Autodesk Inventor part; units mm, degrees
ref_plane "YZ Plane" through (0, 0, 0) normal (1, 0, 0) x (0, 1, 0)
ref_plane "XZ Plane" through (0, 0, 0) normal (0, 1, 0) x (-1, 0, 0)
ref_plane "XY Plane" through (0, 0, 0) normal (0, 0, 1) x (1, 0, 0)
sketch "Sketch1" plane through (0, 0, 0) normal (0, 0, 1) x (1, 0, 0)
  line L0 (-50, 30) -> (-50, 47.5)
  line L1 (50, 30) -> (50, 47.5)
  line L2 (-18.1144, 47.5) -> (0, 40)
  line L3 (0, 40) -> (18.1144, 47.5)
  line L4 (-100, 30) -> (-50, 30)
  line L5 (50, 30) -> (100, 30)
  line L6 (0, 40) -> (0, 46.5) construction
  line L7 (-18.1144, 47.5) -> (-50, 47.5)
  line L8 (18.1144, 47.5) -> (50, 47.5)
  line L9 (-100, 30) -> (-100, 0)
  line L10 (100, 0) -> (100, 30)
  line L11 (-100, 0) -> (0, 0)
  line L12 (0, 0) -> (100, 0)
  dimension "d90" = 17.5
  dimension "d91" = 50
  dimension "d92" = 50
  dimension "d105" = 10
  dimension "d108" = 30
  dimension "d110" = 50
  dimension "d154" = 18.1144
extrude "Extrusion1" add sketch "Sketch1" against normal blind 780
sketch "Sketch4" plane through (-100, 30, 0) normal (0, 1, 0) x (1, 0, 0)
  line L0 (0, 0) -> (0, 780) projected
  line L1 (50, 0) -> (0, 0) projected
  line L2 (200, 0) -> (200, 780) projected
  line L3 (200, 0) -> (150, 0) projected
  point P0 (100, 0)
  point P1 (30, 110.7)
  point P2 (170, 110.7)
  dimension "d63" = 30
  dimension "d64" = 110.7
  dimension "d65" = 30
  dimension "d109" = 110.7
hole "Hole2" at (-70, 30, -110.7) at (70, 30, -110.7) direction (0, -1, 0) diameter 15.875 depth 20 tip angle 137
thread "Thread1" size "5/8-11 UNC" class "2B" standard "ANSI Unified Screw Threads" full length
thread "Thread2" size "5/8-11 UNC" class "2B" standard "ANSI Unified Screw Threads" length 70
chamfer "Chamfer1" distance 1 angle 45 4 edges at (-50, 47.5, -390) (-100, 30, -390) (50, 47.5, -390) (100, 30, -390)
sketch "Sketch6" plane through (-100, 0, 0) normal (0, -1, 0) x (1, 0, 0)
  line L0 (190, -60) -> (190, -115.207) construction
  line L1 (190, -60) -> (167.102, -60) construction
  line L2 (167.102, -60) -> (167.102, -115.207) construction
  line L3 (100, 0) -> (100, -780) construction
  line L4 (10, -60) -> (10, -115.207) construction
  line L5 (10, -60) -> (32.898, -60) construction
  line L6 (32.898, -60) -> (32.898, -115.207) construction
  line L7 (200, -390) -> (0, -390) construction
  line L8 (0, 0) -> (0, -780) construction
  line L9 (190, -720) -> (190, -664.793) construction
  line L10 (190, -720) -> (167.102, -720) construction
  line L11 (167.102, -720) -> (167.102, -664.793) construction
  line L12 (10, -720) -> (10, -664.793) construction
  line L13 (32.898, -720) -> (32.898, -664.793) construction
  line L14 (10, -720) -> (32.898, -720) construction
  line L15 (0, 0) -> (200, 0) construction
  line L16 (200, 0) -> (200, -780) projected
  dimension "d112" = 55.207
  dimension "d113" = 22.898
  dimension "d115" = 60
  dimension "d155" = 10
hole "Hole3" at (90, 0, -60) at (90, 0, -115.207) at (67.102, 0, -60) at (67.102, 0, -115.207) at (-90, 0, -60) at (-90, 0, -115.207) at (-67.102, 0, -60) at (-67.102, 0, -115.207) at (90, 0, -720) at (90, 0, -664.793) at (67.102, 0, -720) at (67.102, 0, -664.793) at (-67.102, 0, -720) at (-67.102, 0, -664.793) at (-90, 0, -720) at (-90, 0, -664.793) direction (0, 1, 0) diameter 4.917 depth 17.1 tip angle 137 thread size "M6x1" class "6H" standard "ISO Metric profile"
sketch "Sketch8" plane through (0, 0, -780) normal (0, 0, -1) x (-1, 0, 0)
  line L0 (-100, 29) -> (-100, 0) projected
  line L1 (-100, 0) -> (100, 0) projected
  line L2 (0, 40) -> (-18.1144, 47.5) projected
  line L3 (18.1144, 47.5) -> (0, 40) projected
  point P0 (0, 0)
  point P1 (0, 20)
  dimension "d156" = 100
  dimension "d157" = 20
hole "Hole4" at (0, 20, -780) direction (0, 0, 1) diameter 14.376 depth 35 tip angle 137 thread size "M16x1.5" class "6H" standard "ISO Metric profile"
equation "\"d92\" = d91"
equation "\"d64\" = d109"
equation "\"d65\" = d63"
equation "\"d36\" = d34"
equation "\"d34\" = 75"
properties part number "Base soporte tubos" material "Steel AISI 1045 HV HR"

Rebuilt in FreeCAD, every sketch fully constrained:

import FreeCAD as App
import Part
import Sketcher
from FreeCAD import Vector


def edges_at(feature, points):
    """Names of the edges that pass closest to the given points."""
    edges = feature.Shape.Edges
    near = lambda p: min(range(len(edges)), key=lambda i: edges[i].distToShape(Part.Vertex(*p))[0])
    return sorted({f"Edge{near(p) + 1}" for p in points})


def add_polygon(sketch, points):
    """Adds a closed chain of lines whose ends are joined by coincident constraints."""
    first, n = sketch.GeometryCount, len(points)
    for a, b in zip(points, points[1:] + points[:1]):
        sketch.addGeometry(Part.LineSegment(App.Vector(*a, 0), App.Vector(*b, 0)), False)
    for i in range(n):
        sketch.addConstraint(Sketcher.Constraint("Coincident", first + i, 2, first + (i + 1) % n, 1))

doc = App.newDocument("Part")
params = doc.addObject("Spreadsheet::Sheet", "Params")
for row, (alias, value) in enumerate([
    ("sketch1_width", "50 mm"),
    ("sketch1_height", "30 mm"),
    ("sketch1_height2", "17.5 mm"),
    ("pad1_length", "780 mm"),
    ("hole_diameter", "15.875 mm"),
    ("hole_depth", "20 mm"),
    ("chamfer_size", "1 mm"),
    ("hole2_diameter", "4.917 mm"),
    ("hole2_depth", "17.1 mm"),
    ("hole3_diameter", "14.376 mm"),
    ("hole3_depth", "35 mm"),
], start=1):
    params.set(f"A{row}", alias)
    params.set(f"B{row}", "=" + value)
    params.setAlias(f"B{row}", alias)

body = doc.addObject("PartDesign::Body", "Body")

# Sketch on XY plane
sketch1 = body.newObject("Sketcher::SketchObject", "Sketch")
sketch1.AttachmentSupport = (doc.getObject("XY_Plane"), [""])
sketch1.MapMode = "FlatFace"
add_polygon(sketch1, [(-50, 48), (-50, 30), (-100, 30), (-100, 0), (100, 0), (100, 30), (50, 30), (50, 48), (18, 48), (0, 40), (-18, 48)])  # lines 0-10
sketch1.addConstraint(Sketcher.Constraint("Vertical", 0))
sketch1.addConstraint(Sketcher.Constraint("Horizontal", 1))
sketch1.addConstraint(Sketcher.Constraint("Vertical", 2))
sketch1.addConstraint(Sketcher.Constraint("Horizontal", 3))
sketch1.addConstraint(Sketcher.Constraint("Vertical", 4))
sketch1.addConstraint(Sketcher.Constraint("Horizontal", 5))
sketch1.addConstraint(Sketcher.Constraint("Vertical", 6))
sketch1.addConstraint(Sketcher.Constraint("Horizontal", 7))
sketch1.addConstraint(Sketcher.Constraint("Horizontal", 10))
sketch1.addConstraint(Sketcher.Constraint("Symmetric", 2, 2, 3, 2, -1, 1))
sketch1.addConstraint(Sketcher.Constraint("Symmetric", 0, 2, 5, 2, -2))
sketch1.addConstraint(Sketcher.Constraint("Symmetric", 7, 2, 9, 2, -2))
sketch1.addConstraint(Sketcher.Constraint("PointOnObject", 8, 2, -2))
sketch1.addConstraint(Sketcher.Constraint("DistanceX", 1, 2, 1, 1, 50.0))
sketch1.addConstraint(Sketcher.Constraint("DistanceY", 2, 2, 2, 1, 30.0))
sketch1.addConstraint(Sketcher.Constraint("DistanceY", 0, 2, 0, 1, 17.5))
sketch1.addConstraint(Sketcher.Constraint("DistanceX", 0, 2, -1, 1, 50.0))
sketch1.addConstraint(Sketcher.Constraint("DistanceY", 0, 2, 8, 2, 10.0))
sketch1.addConstraint(Sketcher.Constraint("DistanceX", -1, 1, 7, 2, 18.1144))
sketch1.setExpression("Constraints[24]", "Params.sketch1_width")
sketch1.setExpression("Constraints[25]", "Params.sketch1_height")
sketch1.setExpression("Constraints[26]", "Params.sketch1_height2")
pad1 = body.newObject("PartDesign::Pad", "Pad")
pad1.Profile = sketch1
pad1.setExpression("Length", "Params.pad1_length")
pad1.Reversed = True

# Sketch on XZ plane
sketch2 = body.newObject("Sketcher::SketchObject", "Sketch001")
sketch2.AttachmentSupport = (doc.getObject("XZ_Plane"), [""])
sketch2.MapMode = "FlatFace"
sketch2.AttachmentOffset = App.Placement(Vector(0, 0, -30), App.Rotation())
sketch2.addGeometry(Part.Circle(Vector(-70, -111, 0), Vector(0, 0, 1), 8), False)
sketch2.addGeometry(Part.Circle(Vector(70, -111, 0), Vector(0, 0, 1), 8), False)
sketch2.addConstraint(Sketcher.Constraint("Equal", 0, 1))
sketch2.addConstraint(Sketcher.Constraint("Symmetric", 0, 3, 1, 3, -2))
sketch2.addConstraint(Sketcher.Constraint("Diameter", 0, 15.875))
sketch2.addConstraint(Sketcher.Constraint("DistanceX", 0, 3, -1, 1, 70.0))
sketch2.addConstraint(Sketcher.Constraint("DistanceY", 0, 3, -1, 1, 110.7))
doc.recompute()
hole = body.newObject("PartDesign::Hole", "Hole")
hole.Profile = sketch2
hole.ThreadType = "None"
hole.setExpression("Diameter", "Params.hole_diameter")
hole.DepthType = "Dimension"
hole.setExpression("Depth", "Params.hole_depth")
hole.DrillPoint = "Angled"
hole.DrillPointAngle = 137
hole.Reversed = True
doc.recompute()

chamfer = body.newObject("PartDesign::Chamfer", "Chamfer")
chamfer.Base = (hole, edges_at(hole, [
    (-50, 47.5, -390),
    (-100, 30, -390),
    (50, 47.5, -390),
    (100, 30, -390),
]))
chamfer.setExpression("Size", "Params.chamfer_size")

# Sketch on XZ plane
sketch3 = body.newObject("Sketcher::SketchObject", "Sketch002")
sketch3.AttachmentSupport = (doc.getObject("XZ_Plane"), [""])
sketch3.MapMode = "FlatFace"
sketch3.addGeometry(Part.Circle(Vector(90, -60, 0), Vector(0, 0, 1), 2.5), False)
sketch3.addGeometry(Part.Circle(Vector(90, -115.2, 0), Vector(0, 0, 1), 2.5), False)
sketch3.addGeometry(Part.Circle(Vector(67.1, -60, 0), Vector(0, 0, 1), 2.5), False)
sketch3.addGeometry(Part.Circle(Vector(67.1, -115.2, 0), Vector(0, 0, 1), 2.5), False)
sketch3.addGeometry(Part.Circle(Vector(-90, -60, 0), Vector(0, 0, 1), 2.5), False)
sketch3.addGeometry(Part.Circle(Vector(-90, -115.2, 0), Vector(0, 0, 1), 2.5), False)
sketch3.addGeometry(Part.Circle(Vector(-67.1, -60, 0), Vector(0, 0, 1), 2.5), False)
sketch3.addGeometry(Part.Circle(Vector(-67.1, -115.2, 0), Vector(0, 0, 1), 2.5), False)
sketch3.addGeometry(Part.Circle(Vector(90, -720, 0), Vector(0, 0, 1), 2.5), False)
sketch3.addGeometry(Part.Circle(Vector(90, -664.8, 0), Vector(0, 0, 1), 2.5), False)
sketch3.addGeometry(Part.Circle(Vector(67.1, -720, 0), Vector(0, 0, 1), 2.5), False)
sketch3.addGeometry(Part.Circle(Vector(67.1, -664.8, 0), Vector(0, 0, 1), 2.5), False)
sketch3.addGeometry(Part.Circle(Vector(-67.1, -720, 0), Vector(0, 0, 1), 2.5), False)
sketch3.addGeometry(Part.Circle(Vector(-67.1, -664.8, 0), Vector(0, 0, 1), 2.5), False)
sketch3.addGeometry(Part.Circle(Vector(-90, -720, 0), Vector(0, 0, 1), 2.5), False)
sketch3.addGeometry(Part.Circle(Vector(-90, -664.8, 0), Vector(0, 0, 1), 2.5), False)
sketch3.addConstraint(Sketcher.Constraint("Equal", 0, 1))
sketch3.addConstraint(Sketcher.Constraint("Equal", 1, 2))
sketch3.addConstraint(Sketcher.Constraint("Equal", 2, 3))
sketch3.addConstraint(Sketcher.Constraint("Equal", 3, 4))
sketch3.addConstraint(Sketcher.Constraint("Equal", 4, 5))
sketch3.addConstraint(Sketcher.Constraint("Equal", 5, 6))
sketch3.addConstraint(Sketcher.Constraint("Equal", 6, 7))
sketch3.addConstraint(Sketcher.Constraint("Equal", 7, 8))
sketch3.addConstraint(Sketcher.Constraint("Equal", 8, 9))
sketch3.addConstraint(Sketcher.Constraint("Equal", 9, 10))
sketch3.addConstraint(Sketcher.Constraint("Equal", 10, 11))
sketch3.addConstraint(Sketcher.Constraint("Equal", 11, 12))
sketch3.addConstraint(Sketcher.Constraint("Equal", 12, 13))
sketch3.addConstraint(Sketcher.Constraint("Equal", 13, 14))
sketch3.addConstraint(Sketcher.Constraint("Equal", 14, 15))
sketch3.addConstraint(Sketcher.Constraint("Symmetric", 0, 3, 4, 3, -2))
sketch3.addConstraint(Sketcher.Constraint("Symmetric", 1, 3, 5, 3, -2))
sketch3.addConstraint(Sketcher.Constraint("Symmetric", 2, 3, 6, 3, -2))
sketch3.addConstraint(Sketcher.Constraint("Symmetric", 3, 3, 7, 3, -2))
sketch3.addConstraint(Sketcher.Constraint("Symmetric", 10, 3, 12, 3, -2))
sketch3.addConstraint(Sketcher.Constraint("Symmetric", 11, 3, 13, 3, -2))
sketch3.addConstraint(Sketcher.Constraint("Symmetric", 8, 3, 14, 3, -2))
sketch3.addConstraint(Sketcher.Constraint("Symmetric", 9, 3, 15, 3, -2))
sketch3.addConstraint(Sketcher.Constraint("Horizontal", 0, 3, 2, 3))
sketch3.addConstraint(Sketcher.Constraint("Horizontal", 1, 3, 3, 3))
sketch3.addConstraint(Sketcher.Constraint("Horizontal", 8, 3, 10, 3))
sketch3.addConstraint(Sketcher.Constraint("Horizontal", 9, 3, 11, 3))
sketch3.addConstraint(Sketcher.Constraint("Vertical", 0, 3, 1, 3))
sketch3.addConstraint(Sketcher.Constraint("Vertical", 2, 3, 3, 3))
sketch3.addConstraint(Sketcher.Constraint("Vertical", 1, 3, 8, 3))
sketch3.addConstraint(Sketcher.Constraint("Vertical", 8, 3, 9, 3))
sketch3.addConstraint(Sketcher.Constraint("Vertical", 3, 3, 10, 3))
sketch3.addConstraint(Sketcher.Constraint("Vertical", 10, 3, 11, 3))
sketch3.addConstraint(Sketcher.Constraint("Diameter", 0, 4.917))
sketch3.addConstraint(Sketcher.Constraint("DistanceX", -1, 1, 0, 3, 90.0))
sketch3.addConstraint(Sketcher.Constraint("DistanceY", 0, 3, -1, 1, 60.0))
sketch3.addConstraint(Sketcher.Constraint("DistanceY", 8, 3, -1, 1, 720.0))
sketch3.addConstraint(Sketcher.Constraint("DistanceY", 1, 3, -1, 1, 115.207))
sketch3.addConstraint(Sketcher.Constraint("DistanceX", -1, 1, 2, 3, 67.102))
sketch3.addConstraint(Sketcher.Constraint("DistanceY", 9, 3, -1, 1, 664.793))
doc.recompute()
hole2 = body.newObject("PartDesign::Hole", "Hole001")
hole2.Profile = sketch3
hole2.ThreadType = "None"
hole2.setExpression("Diameter", "Params.hole2_diameter")
hole2.DepthType = "Dimension"
hole2.setExpression("Depth", "Params.hole2_depth")
hole2.DrillPoint = "Angled"
hole2.DrillPointAngle = 137

# Sketch on XY plane
sketch4 = body.newObject("Sketcher::SketchObject", "Sketch003")
sketch4.AttachmentSupport = (doc.getObject("XY_Plane"), [""])
sketch4.MapMode = "FlatFace"
sketch4.AttachmentOffset = App.Placement(Vector(0, 0, -780), App.Rotation())
sketch4.addGeometry(Part.Circle(Vector(0, 20, 0), Vector(0, 0, 1), 7), False)
sketch4.addConstraint(Sketcher.Constraint("PointOnObject", 0, 3, -2))
sketch4.addConstraint(Sketcher.Constraint("Diameter", 0, 14.376))
sketch4.addConstraint(Sketcher.Constraint("DistanceY", -1, 1, 0, 3, 20.0))
doc.recompute()
hole3 = body.newObject("PartDesign::Hole", "Hole002")
hole3.Profile = sketch4
hole3.ThreadType = "None"
hole3.setExpression("Diameter", "Params.hole3_diameter")
hole3.DepthType = "Dimension"
hole3.setExpression("Depth", "Params.hole3_depth")
hole3.DrillPoint = "Angled"
hole3.DrillPointAngle = 137
hole3.Reversed = True

doc.recompute()
